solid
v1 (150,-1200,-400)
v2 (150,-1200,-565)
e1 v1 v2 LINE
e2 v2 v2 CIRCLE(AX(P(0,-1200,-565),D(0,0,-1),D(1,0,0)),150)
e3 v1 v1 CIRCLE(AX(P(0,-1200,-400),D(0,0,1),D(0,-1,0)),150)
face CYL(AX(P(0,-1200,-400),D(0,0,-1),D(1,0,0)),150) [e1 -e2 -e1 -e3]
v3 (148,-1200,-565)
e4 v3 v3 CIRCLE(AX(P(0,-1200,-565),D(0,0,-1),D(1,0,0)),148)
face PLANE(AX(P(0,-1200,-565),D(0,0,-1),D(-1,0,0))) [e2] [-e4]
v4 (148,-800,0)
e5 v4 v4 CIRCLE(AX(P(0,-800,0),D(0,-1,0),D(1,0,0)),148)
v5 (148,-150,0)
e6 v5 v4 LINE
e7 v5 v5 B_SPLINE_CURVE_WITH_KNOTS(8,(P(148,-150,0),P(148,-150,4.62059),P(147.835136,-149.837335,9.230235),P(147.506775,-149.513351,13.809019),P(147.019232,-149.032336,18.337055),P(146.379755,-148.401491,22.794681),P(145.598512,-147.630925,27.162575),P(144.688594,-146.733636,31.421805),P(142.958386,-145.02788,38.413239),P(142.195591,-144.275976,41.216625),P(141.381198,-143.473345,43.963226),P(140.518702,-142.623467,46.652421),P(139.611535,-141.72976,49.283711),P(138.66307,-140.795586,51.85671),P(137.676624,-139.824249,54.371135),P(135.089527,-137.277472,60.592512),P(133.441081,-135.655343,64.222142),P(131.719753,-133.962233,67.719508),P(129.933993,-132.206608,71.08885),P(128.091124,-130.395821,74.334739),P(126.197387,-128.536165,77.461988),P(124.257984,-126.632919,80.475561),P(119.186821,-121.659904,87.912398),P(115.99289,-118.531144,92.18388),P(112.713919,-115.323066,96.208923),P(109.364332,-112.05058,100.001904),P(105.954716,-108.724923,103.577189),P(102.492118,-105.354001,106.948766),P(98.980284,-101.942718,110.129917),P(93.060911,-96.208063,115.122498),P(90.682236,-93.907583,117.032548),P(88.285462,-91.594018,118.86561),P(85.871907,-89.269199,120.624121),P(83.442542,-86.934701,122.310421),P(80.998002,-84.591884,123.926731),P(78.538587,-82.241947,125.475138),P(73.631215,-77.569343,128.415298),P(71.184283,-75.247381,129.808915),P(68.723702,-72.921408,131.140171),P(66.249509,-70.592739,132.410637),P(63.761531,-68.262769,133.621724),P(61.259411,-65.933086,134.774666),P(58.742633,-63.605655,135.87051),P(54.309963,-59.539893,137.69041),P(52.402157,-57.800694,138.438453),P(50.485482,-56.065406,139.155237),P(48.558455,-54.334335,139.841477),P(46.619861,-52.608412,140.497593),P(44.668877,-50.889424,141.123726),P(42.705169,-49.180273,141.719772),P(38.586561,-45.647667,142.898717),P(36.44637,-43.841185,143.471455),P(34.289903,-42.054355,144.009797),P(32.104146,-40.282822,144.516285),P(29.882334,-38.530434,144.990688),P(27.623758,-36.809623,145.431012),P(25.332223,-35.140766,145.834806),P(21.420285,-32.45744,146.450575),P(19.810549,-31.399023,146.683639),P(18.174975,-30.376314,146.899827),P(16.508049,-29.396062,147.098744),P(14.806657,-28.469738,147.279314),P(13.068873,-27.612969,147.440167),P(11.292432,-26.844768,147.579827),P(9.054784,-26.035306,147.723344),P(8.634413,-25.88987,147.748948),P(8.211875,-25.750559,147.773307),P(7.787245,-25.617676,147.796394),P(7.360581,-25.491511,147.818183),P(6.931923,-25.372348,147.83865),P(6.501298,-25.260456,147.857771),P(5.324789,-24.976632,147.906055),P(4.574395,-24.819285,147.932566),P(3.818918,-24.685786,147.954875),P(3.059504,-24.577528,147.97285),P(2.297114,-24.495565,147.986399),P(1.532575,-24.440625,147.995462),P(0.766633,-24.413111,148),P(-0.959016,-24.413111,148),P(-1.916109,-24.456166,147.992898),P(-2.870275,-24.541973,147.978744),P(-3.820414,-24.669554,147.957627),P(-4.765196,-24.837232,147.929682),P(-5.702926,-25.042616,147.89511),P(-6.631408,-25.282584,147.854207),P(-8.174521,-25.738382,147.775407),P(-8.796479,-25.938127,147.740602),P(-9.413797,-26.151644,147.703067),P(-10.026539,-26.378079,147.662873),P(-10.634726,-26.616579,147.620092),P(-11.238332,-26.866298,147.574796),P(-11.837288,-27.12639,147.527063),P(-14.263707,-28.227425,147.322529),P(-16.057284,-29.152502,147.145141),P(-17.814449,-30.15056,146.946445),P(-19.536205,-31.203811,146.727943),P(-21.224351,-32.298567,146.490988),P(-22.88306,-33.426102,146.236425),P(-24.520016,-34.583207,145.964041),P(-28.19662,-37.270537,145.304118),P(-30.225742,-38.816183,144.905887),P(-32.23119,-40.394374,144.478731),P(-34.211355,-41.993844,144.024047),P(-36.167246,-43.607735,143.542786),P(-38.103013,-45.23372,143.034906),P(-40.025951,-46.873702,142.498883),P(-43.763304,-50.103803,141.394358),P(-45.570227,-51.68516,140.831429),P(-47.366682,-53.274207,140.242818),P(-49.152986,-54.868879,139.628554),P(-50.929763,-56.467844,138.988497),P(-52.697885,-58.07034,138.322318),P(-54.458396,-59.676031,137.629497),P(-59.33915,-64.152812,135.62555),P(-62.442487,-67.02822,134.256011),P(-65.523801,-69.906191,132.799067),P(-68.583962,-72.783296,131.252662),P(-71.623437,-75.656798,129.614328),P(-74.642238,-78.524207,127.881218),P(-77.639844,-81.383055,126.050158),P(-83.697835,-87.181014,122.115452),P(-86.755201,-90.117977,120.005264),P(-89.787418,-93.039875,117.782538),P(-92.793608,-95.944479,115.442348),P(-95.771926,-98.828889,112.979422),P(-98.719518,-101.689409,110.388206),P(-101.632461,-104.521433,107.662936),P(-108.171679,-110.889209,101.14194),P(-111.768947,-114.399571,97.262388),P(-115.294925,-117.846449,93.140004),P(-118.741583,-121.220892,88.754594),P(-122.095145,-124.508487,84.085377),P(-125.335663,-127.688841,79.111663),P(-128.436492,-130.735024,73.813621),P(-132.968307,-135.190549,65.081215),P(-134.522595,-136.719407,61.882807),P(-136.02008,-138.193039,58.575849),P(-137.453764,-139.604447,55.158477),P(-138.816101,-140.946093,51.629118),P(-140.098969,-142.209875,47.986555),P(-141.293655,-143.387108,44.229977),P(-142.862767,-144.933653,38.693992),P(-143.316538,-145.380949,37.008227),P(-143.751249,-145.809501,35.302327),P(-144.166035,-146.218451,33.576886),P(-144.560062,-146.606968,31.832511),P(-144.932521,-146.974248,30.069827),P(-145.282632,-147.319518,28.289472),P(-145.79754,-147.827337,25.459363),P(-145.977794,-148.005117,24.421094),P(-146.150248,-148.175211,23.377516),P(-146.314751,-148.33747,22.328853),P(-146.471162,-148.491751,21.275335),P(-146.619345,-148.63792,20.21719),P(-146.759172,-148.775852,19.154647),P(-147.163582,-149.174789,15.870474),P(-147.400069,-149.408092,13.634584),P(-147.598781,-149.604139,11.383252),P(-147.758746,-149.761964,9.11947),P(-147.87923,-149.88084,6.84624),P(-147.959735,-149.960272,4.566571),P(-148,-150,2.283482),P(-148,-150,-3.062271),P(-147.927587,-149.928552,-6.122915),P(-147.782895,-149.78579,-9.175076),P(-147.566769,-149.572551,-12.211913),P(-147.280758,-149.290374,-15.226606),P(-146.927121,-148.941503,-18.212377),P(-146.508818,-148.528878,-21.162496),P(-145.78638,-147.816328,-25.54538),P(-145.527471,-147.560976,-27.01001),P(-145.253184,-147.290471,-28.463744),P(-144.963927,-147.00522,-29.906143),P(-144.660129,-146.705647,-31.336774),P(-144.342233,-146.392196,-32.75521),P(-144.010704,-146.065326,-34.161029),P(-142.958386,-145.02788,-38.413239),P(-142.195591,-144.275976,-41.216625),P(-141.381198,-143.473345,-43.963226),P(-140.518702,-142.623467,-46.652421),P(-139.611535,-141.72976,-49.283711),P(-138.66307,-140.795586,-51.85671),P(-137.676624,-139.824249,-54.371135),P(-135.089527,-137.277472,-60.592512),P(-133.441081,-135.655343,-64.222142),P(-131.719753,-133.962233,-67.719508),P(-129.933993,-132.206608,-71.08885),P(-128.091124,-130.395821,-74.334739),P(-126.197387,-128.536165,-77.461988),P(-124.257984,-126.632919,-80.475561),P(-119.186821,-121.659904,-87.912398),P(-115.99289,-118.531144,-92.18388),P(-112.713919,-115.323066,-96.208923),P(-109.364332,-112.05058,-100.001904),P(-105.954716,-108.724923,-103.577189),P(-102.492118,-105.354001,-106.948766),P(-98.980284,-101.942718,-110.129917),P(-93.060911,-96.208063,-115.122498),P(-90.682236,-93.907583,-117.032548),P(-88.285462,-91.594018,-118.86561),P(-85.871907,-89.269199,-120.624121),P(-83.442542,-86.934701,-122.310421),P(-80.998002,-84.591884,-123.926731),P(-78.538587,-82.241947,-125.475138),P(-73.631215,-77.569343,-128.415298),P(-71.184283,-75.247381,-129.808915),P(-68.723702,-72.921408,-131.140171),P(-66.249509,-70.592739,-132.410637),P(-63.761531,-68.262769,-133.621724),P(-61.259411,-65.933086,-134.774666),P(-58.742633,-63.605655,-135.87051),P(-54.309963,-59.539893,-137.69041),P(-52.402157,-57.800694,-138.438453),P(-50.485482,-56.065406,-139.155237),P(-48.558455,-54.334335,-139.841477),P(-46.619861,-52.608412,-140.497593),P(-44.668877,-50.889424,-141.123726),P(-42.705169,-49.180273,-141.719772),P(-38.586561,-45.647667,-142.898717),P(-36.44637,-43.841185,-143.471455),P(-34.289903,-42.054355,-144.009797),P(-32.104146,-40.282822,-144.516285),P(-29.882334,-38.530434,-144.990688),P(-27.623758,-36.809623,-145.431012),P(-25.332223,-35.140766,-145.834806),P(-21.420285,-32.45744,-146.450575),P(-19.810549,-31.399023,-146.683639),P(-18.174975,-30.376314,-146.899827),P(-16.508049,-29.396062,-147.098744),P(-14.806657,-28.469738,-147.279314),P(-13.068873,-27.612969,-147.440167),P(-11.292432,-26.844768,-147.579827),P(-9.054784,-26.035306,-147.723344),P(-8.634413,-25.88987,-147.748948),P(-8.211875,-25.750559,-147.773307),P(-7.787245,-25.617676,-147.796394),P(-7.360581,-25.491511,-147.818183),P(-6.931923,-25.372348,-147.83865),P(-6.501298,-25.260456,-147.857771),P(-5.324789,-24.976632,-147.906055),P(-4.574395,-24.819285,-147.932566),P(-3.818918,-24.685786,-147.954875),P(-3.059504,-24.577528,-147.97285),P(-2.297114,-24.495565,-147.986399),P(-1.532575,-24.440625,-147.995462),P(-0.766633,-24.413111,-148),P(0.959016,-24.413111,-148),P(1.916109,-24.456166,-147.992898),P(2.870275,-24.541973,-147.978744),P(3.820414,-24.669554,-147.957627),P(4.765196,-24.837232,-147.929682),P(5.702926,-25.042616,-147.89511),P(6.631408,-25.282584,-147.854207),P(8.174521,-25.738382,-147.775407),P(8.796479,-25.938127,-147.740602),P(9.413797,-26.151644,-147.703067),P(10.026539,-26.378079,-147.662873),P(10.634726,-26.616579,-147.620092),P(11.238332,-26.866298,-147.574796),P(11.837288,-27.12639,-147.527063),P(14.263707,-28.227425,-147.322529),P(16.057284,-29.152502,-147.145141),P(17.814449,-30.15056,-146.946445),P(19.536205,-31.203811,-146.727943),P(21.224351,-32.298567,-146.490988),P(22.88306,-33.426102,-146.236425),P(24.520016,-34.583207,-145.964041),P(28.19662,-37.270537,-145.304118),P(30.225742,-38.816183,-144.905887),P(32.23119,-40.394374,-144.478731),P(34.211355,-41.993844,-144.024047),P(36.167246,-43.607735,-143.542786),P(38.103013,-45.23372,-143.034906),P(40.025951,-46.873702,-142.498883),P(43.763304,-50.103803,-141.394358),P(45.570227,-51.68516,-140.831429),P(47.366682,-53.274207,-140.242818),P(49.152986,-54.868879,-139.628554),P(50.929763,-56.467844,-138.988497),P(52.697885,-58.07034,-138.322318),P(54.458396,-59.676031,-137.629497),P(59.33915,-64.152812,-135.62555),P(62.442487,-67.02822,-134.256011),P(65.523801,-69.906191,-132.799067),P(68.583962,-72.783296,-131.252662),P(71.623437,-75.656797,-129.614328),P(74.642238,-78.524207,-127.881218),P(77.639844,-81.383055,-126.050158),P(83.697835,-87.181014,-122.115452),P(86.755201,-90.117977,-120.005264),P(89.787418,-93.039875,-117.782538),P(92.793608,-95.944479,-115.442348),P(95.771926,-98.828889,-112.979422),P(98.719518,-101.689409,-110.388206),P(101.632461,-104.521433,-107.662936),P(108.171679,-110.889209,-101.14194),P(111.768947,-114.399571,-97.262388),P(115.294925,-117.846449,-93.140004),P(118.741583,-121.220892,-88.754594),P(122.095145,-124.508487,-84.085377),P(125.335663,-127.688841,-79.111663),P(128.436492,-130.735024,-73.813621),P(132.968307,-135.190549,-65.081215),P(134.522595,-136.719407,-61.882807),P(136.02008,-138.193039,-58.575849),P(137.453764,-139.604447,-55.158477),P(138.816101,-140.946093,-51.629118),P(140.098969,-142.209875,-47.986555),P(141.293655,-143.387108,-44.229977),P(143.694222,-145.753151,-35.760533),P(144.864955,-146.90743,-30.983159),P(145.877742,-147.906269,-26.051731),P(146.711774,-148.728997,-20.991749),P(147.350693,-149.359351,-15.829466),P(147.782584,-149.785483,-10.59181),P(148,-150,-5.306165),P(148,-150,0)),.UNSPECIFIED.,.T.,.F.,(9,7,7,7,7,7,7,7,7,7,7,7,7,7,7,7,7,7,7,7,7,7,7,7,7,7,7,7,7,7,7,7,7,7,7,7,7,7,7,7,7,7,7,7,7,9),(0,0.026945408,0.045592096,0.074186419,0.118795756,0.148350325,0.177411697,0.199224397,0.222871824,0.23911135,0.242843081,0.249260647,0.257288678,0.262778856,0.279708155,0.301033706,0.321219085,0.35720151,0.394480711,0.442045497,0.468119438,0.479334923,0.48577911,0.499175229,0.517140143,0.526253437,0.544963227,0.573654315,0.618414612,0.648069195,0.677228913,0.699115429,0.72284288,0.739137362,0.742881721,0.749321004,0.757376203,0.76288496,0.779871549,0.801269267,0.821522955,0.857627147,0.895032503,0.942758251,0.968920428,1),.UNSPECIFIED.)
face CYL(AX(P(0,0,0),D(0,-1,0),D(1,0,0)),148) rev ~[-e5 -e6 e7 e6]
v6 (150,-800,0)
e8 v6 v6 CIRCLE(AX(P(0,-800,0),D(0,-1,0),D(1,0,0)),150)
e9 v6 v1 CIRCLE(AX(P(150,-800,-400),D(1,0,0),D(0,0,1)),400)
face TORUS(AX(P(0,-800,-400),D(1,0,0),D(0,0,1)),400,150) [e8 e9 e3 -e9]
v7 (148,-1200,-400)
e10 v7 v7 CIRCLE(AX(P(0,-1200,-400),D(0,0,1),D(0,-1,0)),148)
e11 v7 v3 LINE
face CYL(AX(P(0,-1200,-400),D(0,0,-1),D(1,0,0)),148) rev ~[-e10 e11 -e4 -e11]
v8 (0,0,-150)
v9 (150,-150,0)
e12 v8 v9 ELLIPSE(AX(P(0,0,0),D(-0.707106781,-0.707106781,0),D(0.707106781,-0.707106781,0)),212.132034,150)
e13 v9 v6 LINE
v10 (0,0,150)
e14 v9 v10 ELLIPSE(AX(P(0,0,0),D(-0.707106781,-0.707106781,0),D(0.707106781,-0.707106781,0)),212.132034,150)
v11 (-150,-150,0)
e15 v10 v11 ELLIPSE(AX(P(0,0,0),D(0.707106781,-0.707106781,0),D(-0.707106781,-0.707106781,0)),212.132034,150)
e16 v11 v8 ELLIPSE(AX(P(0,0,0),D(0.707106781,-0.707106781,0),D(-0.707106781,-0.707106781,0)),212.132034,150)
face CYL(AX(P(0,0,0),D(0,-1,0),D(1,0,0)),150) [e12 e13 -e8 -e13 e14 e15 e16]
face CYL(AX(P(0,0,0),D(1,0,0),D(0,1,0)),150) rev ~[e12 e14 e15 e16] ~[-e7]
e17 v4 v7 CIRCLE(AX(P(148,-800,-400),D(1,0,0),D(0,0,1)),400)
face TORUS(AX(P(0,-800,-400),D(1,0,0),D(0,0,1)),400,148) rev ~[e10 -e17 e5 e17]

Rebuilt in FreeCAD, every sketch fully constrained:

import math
import FreeCAD as App
import Part
import Sketcher
Q = App.Units.Quantity

doc = App.newDocument("Part")
params = doc.addObject("Spreadsheet::Sheet", "Params")
for row, (alias, value) in enumerate([
    ("sketch1_diameter", "300 mm"),
    ("sketch1_diameter2", "296 mm"),
    ("sketch2_radius", "400 mm"),
    ("sketch2_width", "800 mm"),
    ("sketch2_height", "165 mm"),
    ("sketch3_diameter", "300 mm"),
    ("pocket1_length", "300 mm"),
    ("sketch4_diameter", "400 mm"),
], start=1):
    params.set(f"A{row}", alias)
    params.set(f"B{row}", "=" + value)
    params.setAlias(f"B{row}", alias)

body = doc.addObject("PartDesign::Body", "Body")

sketch1 = doc.addObject("Sketcher::SketchObject", "Sketch")
body.addObject(sketch1)
sketch1.AttachmentSupport = (doc.XZ_Plane, [""])
sketch1.MapMode = "FlatFace"
sketch1.addGeometry(Part.Circle(App.Vector(0, 0, 0), App.Vector(0, 0, 1), 150), False)
sketch1.addGeometry(Part.Circle(App.Vector(0, 0, 0), App.Vector(0, 0, 1), 148), False)
sketch1.addConstraint(Sketcher.Constraint("Coincident", 0, 3, -1, 1))
sketch1.addConstraint(Sketcher.Constraint("Coincident", 1, 3, -1, 1))
sketch1.addConstraint(Sketcher.Constraint("Diameter", 0, Q("300 mm")))
sketch1.addConstraint(Sketcher.Constraint("Diameter", 1, Q("296 mm")))
sketch1.setExpression("Constraints[2]", "Params.sketch1_diameter")
sketch1.setExpression("Constraints[3]", "Params.sketch1_diameter2")

sketch2 = doc.addObject("Sketcher::SketchObject", "Sketch001")
body.addObject(sketch2)
sketch2.AttachmentSupport = (doc.YZ_Plane, [""])
sketch2.MapMode = "FlatFace"
sketch2.addGeometry(Part.LineSegment(App.Vector(0, 0, 0), App.Vector(-800, 0, 0)), False)
sketch2.addGeometry(Part.ArcOfCircle(Part.Circle(App.Vector(-800, -400, 0), App.Vector(0, 0, 1), 400), math.radians(90), math.radians(180)), False)
sketch2.addGeometry(Part.LineSegment(App.Vector(-1200, -400, 0), App.Vector(-1200, -565, 0)), False)
sketch2.addConstraint(Sketcher.Constraint("Tangent", 0, 2, 1, 1))
sketch2.addConstraint(Sketcher.Constraint("Tangent", 1, 2, 2, 1))
sketch2.addConstraint(Sketcher.Constraint("Horizontal", 0))
sketch2.addConstraint(Sketcher.Constraint("Vertical", 2))
sketch2.addConstraint(Sketcher.Constraint("Coincident", 0, 1, -1, 1))
sketch2.addConstraint(Sketcher.Constraint("Radius", 1, Q("400 mm")))
sketch2.addConstraint(Sketcher.Constraint("DistanceX", 0, 2, 0, 1, Q("800 mm")))
sketch2.addConstraint(Sketcher.Constraint("DistanceY", 2, 2, 2, 1, Q("165 mm")))
sketch2.setExpression("Constraints[5]", "Params.sketch2_radius")
sketch2.setExpression("Constraints[6]", "Params.sketch2_width")
sketch2.setExpression("Constraints[7]", "Params.sketch2_height")
doc.recompute()

additivepipe = doc.addObject("PartDesign::AdditivePipe", "AdditivePipe")
body.addObject(additivepipe)
additivepipe.Profile = sketch1
additivepipe.Spine = (sketch2, ["Edge1", "Edge2", "Edge3"])

sketch3 = doc.addObject("Sketcher::SketchObject", "Sketch002")
body.addObject(sketch3)
sketch3.AttachmentSupport = (doc.YZ_Plane, [""])
sketch3.MapMode = "FlatFace"
sketch3.addGeometry(Part.Circle(App.Vector(0, 0, 0), App.Vector(0, 0, 1), 150), False)
sketch3.addConstraint(Sketcher.Constraint("Coincident", 0, 3, -1, 1))
sketch3.addConstraint(Sketcher.Constraint("Diameter", 0, Q("300 mm")))
sketch3.setExpression("Constraints[1]", "Params.sketch3_diameter")
pocket1 = doc.addObject("PartDesign::Pocket", "Pocket")
body.addObject(pocket1)
pocket1.Profile = sketch3
pocket1.setExpression("Length", "Params.pocket1_length")
pocket1.Midplane = True

sketch4 = doc.addObject("Sketcher::SketchObject", "Sketch003")
body.addObject(sketch4)
sketch4.AttachmentSupport = (doc.XZ_Plane, [""])
sketch4.MapMode = "FlatFace"
sketch4.addGeometry(Part.Circle(App.Vector(0, -7129, 0), App.Vector(0, 0, 1), 200), False)
sketch4.addConstraint(Sketcher.Constraint("PointOnObject", 0, 3, -2))
sketch4.addConstraint(Sketcher.Constraint("Diameter", 0, Q("400 mm")))
sketch4.addConstraint(Sketcher.Constraint("DistanceY", 0, 3, -1, 1, Q("7129.132748 mm")))
sketch4.setExpression("Constraints[1]", "Params.sketch4_diameter")
pocket2 = doc.addObject("PartDesign::Pocket", "Pocket001")
body.addObject(pocket2)
pocket2.Profile = sketch4
pocket2.Type = "ThroughAll"
pocket2.Reversed = True

doc.recompute()
